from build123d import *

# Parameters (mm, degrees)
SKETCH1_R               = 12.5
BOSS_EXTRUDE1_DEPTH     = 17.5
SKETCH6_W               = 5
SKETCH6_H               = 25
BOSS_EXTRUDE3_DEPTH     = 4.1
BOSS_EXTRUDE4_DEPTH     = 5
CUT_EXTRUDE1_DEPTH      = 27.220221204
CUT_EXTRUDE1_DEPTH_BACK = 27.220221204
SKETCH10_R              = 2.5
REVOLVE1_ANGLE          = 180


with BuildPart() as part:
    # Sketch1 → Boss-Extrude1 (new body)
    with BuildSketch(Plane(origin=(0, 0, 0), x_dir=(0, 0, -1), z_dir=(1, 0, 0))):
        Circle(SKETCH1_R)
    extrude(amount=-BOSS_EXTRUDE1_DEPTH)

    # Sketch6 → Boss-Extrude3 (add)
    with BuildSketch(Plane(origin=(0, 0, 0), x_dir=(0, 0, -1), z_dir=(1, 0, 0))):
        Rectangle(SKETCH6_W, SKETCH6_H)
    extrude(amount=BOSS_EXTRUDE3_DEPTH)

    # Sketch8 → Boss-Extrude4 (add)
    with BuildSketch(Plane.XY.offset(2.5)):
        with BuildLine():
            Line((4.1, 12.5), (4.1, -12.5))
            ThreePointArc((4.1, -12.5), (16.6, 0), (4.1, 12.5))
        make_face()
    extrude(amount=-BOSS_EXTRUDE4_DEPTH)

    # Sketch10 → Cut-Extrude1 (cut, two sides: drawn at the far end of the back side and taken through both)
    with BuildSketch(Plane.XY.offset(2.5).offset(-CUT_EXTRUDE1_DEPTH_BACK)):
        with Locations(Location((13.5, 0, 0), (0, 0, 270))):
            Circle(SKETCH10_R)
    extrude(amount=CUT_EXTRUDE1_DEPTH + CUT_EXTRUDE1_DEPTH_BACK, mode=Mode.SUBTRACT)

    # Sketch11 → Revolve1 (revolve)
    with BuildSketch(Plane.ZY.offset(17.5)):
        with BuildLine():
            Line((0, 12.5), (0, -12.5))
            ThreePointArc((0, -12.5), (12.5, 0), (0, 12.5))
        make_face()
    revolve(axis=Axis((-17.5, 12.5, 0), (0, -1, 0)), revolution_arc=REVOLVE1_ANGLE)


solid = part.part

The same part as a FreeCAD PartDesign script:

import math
import FreeCAD as App
import Part
import Sketcher

V = App.Vector


def add_polygon(sketch, points):
    """Adds a closed chain of lines whose ends are joined by coincident constraints."""
    first, n = sketch.GeometryCount, len(points)
    for a, b in zip(points, points[1:] + points[:1]):
        sketch.addGeometry(Part.LineSegment(App.Vector(*a, 0), App.Vector(*b, 0)), False)
    for i in range(n):
        sketch.addConstraint(Sketcher.Constraint("Coincident", first + i, 2, first + (i + 1) % n, 1))

doc = App.newDocument("Part")
body = doc.addObject("PartDesign::Body", "Body")

sketch1 = body.newObject("Sketcher::SketchObject", "Sketch")
sketch1.AttachmentSupport = (doc.getObject("YZ_Plane"), [""])
sketch1.MapMode = "FlatFace"
sketch1.addGeometry(Part.Circle(V(0, 0, 0), V(0, 0, 1), 12), False)
sketch1.addConstraint(Sketcher.Constraint("Coincident", 0, 3, -1, 1))
sketch1.addConstraint(Sketcher.Constraint("Diameter", 0, 25.0))
pad1 = body.newObject("PartDesign::Pad", "Pad")
pad1.Profile = sketch1
pad1.Length = 17.5
pad1.Reversed = True

sketch2 = body.newObject("Sketcher::SketchObject", "Sketch001")
sketch2.AttachmentSupport = (doc.getObject("YZ_Plane"), [""])
sketch2.MapMode = "FlatFace"
add_polygon(sketch2, [(12, 2), (-12, 2), (-12, -2), (12, -2)])
sketch2.addConstraint(Sketcher.Constraint("Horizontal", 0))
sketch2.addConstraint(Sketcher.Constraint("Vertical", 1))
sketch2.addConstraint(Sketcher.Constraint("Horizontal", 2))
sketch2.addConstraint(Sketcher.Constraint("Vertical", 3))
sketch2.addConstraint(Sketcher.Constraint("Symmetric", 0, 2, 2, 2, -1, 1))
sketch2.addConstraint(Sketcher.Constraint("DistanceX", 0, 2, 0, 1, 25.0))
sketch2.addConstraint(Sketcher.Constraint("DistanceY", 1, 2, 1, 1, 5.0))
pad2 = body.newObject("PartDesign::Pad", "Pad001")
pad2.Profile = sketch2
pad2.Length = 4.1

sketch3 = body.newObject("Sketcher::SketchObject", "Sketch002")
sketch3.AttachmentSupport = (doc.getObject("XY_Plane"), [""])
sketch3.MapMode = "FlatFace"
sketch3.AttachmentOffset = App.Placement(V(0, 0, 2.5), App.Rotation())
sketch3.addGeometry(Part.LineSegment(V(4, 12, 0), V(4, -12, 0)), False)
sketch3.addGeometry(Part.ArcOfCircle(Part.Circle(V(4, 0, 0), V(0, 0, 1), 12), math.radians(-90), math.radians(90)), False)
sketch3.addConstraint(Sketcher.Constraint("Coincident", 0, 1, 1, 2))
sketch3.addConstraint(Sketcher.Constraint("Coincident", 1, 1, 0, 2))
sketch3.addConstraint(Sketcher.Constraint("Vertical", 0))
sketch3.addConstraint(Sketcher.Constraint("PointOnObject", 1, 3, -1))
sketch3.addConstraint(Sketcher.Constraint("Vertical", 1, 3, 0, 1))
sketch3.addConstraint(Sketcher.Constraint("Radius", 1, 12.5))
sketch3.addConstraint(Sketcher.Constraint("DistanceX", -1, 1, 1, 3, 4.1))
pad3 = body.newObject("PartDesign::Pad", "Pad002")
pad3.Profile = sketch3
pad3.Length = 5
pad3.Reversed = True

sketch4 = body.newObject("Sketcher::SketchObject", "Sketch003")
sketch4.AttachmentSupport = (doc.getObject("XY_Plane"), [""])
sketch4.MapMode = "FlatFace"
sketch4.AttachmentOffset = App.Placement(V(0, 0, 2.5), App.Rotation())
sketch4.addGeometry(Part.Circle(V(13.5, 0, 0), V(0, 0, 1), 2.5), False)
sketch4.addConstraint(Sketcher.Constraint("PointOnObject", 0, 3, -1))
sketch4.addConstraint(Sketcher.Constraint("Diameter", 0, 5.0))
sketch4.addConstraint(Sketcher.Constraint("DistanceX", -1, 1, 0, 3, 13.5))
pocket1 = body.newObject("PartDesign::Pocket", "Pocket")
pocket1.Profile = sketch4
pocket1.Type = "ThroughAll"
pocket1.Midplane = True

sketch5 = body.newObject("Sketcher::SketchObject", "Sketch004")
sketch5.AttachmentSupport = (doc.getObject("YZ_Plane"), [""])
sketch5.MapMode = "FlatFace"
sketch5.AttachmentOffset = App.Placement(V(0, 0, -17.5), App.Rotation())
sketch5.addGeometry(Part.LineSegment(V(12, 0, 0), V(-12, 0, 0)), False)
sketch5.addGeometry(Part.ArcOfCircle(Part.Circle(V(0, 0, 0), V(0, 0, 1), 12), math.radians(0), math.radians(180)), False)
sketch5.addConstraint(Sketcher.Constraint("Coincident", 0, 1, 1, 1))
sketch5.addConstraint(Sketcher.Constraint("Coincident", 1, 2, 0, 2))
sketch5.addConstraint(Sketcher.Constraint("Horizontal", 0))
sketch5.addConstraint(Sketcher.Constraint("Coincident", 1, 3, -1, 1))
sketch5.addConstraint(Sketcher.Constraint("PointOnObject", 0, 1, -1))
sketch5.addConstraint(Sketcher.Constraint("Radius", 1, 12.5))
revolution = body.newObject("PartDesign::Revolution", "Revolution")
revolution.Profile = sketch5
revolution.ReferenceAxis = (sketch5, ["H_Axis"])
revolution.Angle = 180
revolution.Reversed = True

doc.recompute()
